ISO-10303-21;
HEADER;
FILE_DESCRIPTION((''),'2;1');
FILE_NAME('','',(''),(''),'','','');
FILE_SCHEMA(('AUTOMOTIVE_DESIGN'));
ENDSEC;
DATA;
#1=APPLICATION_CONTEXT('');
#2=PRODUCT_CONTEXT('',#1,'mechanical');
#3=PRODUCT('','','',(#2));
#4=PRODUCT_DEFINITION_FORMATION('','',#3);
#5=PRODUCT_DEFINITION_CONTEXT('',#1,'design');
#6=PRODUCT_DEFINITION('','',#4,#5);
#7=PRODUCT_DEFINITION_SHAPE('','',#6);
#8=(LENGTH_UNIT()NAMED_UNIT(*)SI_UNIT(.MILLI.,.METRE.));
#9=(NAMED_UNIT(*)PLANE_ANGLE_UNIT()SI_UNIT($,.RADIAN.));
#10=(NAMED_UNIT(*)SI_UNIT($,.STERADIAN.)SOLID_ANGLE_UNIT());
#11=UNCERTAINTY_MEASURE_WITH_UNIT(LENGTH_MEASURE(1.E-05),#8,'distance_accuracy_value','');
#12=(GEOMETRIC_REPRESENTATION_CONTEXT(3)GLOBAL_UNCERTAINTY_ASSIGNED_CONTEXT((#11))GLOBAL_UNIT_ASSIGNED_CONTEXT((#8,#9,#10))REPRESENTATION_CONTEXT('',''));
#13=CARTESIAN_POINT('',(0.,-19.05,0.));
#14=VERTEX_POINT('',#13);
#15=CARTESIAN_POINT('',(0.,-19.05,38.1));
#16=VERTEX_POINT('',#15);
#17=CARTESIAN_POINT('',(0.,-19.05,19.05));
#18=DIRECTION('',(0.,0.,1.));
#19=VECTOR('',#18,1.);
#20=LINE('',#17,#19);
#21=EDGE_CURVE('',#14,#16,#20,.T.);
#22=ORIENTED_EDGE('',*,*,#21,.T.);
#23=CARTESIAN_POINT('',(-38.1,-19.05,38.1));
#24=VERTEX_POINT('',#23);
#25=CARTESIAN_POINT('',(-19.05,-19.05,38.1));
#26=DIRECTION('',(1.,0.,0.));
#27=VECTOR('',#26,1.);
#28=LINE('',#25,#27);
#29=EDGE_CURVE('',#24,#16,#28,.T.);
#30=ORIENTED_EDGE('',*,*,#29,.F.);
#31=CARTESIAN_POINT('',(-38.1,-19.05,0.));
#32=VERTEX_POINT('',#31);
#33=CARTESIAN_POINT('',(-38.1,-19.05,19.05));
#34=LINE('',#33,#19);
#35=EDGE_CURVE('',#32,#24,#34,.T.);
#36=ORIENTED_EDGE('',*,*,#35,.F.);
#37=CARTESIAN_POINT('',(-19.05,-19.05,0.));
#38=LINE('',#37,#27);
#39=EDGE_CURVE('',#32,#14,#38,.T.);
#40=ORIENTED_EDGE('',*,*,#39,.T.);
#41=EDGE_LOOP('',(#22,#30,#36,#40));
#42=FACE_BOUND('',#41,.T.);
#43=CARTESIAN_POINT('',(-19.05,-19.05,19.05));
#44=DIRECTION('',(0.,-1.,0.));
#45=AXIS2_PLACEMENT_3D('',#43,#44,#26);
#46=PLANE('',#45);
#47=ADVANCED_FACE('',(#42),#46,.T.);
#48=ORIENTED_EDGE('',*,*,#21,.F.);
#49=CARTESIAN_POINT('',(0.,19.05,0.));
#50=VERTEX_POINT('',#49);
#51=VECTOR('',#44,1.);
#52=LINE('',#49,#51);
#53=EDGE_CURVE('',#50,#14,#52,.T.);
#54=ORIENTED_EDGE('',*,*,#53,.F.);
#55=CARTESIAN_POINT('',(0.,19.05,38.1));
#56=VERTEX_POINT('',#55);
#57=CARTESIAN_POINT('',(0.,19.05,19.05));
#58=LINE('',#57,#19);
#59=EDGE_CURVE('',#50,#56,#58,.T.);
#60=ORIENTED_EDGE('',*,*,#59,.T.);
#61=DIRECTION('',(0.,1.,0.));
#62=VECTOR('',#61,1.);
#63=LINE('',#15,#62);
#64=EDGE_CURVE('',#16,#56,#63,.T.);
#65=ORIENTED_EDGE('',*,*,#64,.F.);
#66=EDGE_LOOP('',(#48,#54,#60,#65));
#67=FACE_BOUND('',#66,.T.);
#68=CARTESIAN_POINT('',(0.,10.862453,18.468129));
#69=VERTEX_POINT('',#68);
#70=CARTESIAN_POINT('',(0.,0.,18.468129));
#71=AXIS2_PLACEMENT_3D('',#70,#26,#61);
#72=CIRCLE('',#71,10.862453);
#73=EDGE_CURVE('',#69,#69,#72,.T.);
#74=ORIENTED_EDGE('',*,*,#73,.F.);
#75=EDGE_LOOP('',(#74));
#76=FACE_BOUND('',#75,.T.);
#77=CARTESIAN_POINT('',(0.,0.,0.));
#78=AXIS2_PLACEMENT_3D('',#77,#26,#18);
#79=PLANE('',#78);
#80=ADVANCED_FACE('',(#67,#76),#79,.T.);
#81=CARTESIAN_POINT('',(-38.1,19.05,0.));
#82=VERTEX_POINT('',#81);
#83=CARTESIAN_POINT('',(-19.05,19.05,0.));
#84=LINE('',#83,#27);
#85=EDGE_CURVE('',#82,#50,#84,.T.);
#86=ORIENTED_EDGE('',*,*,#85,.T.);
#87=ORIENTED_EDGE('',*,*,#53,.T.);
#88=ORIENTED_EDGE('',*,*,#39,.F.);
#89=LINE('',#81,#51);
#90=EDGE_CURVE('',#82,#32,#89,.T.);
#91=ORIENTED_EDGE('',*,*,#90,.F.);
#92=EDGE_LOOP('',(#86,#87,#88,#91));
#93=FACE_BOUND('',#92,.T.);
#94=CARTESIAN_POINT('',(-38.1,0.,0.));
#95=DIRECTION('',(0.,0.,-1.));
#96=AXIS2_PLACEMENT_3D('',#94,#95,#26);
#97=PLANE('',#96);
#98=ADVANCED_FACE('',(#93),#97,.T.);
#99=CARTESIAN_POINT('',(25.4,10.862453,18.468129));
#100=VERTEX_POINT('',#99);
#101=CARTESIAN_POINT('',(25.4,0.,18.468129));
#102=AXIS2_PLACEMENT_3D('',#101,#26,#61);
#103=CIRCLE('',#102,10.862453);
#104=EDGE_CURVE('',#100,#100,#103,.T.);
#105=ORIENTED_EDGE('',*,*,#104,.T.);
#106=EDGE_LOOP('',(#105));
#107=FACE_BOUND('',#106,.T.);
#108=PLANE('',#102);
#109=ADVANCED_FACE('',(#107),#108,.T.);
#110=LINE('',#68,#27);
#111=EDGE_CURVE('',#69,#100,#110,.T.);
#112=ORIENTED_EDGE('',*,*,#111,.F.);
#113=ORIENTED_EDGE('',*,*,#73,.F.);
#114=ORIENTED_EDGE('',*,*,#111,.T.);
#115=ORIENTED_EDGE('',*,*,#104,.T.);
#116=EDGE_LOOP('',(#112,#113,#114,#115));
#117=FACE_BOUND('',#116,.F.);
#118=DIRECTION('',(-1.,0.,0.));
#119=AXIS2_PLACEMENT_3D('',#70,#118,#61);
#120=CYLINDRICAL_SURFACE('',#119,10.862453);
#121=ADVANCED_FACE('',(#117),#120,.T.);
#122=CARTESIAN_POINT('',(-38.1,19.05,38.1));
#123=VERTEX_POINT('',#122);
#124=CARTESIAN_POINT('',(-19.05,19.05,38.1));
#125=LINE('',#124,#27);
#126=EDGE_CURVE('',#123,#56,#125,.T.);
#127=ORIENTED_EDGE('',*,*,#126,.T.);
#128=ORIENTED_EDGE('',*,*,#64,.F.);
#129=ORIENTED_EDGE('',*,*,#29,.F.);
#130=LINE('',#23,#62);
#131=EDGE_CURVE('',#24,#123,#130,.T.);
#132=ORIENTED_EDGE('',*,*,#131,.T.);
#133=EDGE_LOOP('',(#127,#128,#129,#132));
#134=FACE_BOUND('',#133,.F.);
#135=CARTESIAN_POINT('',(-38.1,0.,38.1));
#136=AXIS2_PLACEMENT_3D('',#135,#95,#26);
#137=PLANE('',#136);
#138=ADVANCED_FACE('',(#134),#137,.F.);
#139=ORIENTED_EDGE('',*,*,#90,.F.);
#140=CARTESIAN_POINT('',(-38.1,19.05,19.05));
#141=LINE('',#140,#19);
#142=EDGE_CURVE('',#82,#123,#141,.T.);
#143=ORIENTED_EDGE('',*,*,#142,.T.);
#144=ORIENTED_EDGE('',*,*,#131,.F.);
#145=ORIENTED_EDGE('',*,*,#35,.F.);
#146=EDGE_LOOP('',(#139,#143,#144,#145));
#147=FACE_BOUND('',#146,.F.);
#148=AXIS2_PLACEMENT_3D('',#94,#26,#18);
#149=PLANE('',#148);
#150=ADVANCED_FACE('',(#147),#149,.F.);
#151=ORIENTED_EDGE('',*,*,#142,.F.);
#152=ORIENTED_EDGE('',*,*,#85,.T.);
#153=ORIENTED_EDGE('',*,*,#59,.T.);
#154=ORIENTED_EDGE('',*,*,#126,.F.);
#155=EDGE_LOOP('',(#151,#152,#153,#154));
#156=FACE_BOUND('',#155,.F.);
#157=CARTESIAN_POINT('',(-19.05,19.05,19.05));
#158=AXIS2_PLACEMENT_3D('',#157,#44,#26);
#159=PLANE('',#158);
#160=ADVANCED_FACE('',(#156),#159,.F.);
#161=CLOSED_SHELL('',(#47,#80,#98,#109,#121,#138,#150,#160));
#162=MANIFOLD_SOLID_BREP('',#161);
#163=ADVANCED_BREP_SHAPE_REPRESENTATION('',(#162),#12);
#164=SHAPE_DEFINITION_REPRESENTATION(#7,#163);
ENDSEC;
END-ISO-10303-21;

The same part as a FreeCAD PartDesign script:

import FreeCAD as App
import Part
import Sketcher

V = App.Vector
Q = App.Units.Quantity

doc = App.newDocument("Part")
body = doc.addObject("PartDesign::Body", "Body")

# Sketch on XZ plane
sketch1 = body.newObject("Sketcher::SketchObject", "Sketch")
sketch1.AttachmentSupport = (doc.getObject("XZ_Plane"), [""])
sketch1.MapMode = "FlatFace"
sketch1.addGeometry(Part.LineSegment(V(-38, 38, 0), V(-38, 0, 0)), False)
sketch1.addGeometry(Part.LineSegment(V(-38, 0, 0), V(0, 0, 0)), False)
sketch1.addGeometry(Part.LineSegment(V(0, 0, 0), V(0, 38, 0)), False)
sketch1.addGeometry(Part.LineSegment(V(0, 38, 0), V(-38, 38, 0)), False)
sketch1.addConstraint(Sketcher.Constraint("Coincident", 0, 2, 1, 1))
sketch1.addConstraint(Sketcher.Constraint("Coincident", 1, 2, 2, 1))
sketch1.addConstraint(Sketcher.Constraint("Coincident", 2, 2, 3, 1))
sketch1.addConstraint(Sketcher.Constraint("Coincident", 3, 2, 0, 1))
sketch1.addConstraint(Sketcher.Constraint("Vertical", 0))
sketch1.addConstraint(Sketcher.Constraint("Horizontal", 1))
sketch1.addConstraint(Sketcher.Constraint("Vertical", 2))
sketch1.addConstraint(Sketcher.Constraint("Horizontal", 3))
sketch1.addConstraint(Sketcher.Constraint("Coincident", 1, 2, -1, 1))
sketch1.addConstraint(Sketcher.Constraint("Equal", 3, 0))
sketch1.addConstraint(Sketcher.Constraint("DistanceX", 1, 1, 1, 2, Q("1.5 in")))
pad1 = body.newObject("PartDesign::Pad", "Pad")
pad1.Profile = sketch1
pad1.Length = Q("1.5 in")
pad1.Midplane = True

# Sketch on YZ plane
sketch2 = body.newObject("Sketcher::SketchObject", "Sketch001")
sketch2.AttachmentSupport = (doc.getObject("YZ_Plane"), [""])
sketch2.MapMode = "FlatFace"
sketch2.addGeometry(Part.Circle(V(0, 18, 0), V(0, 0, 1), 11), False)
sketch2.addConstraint(Sketcher.Constraint("PointOnObject", 0, 3, -2))
sketch2.addConstraint(Sketcher.Constraint("Diameter", 0, 21.724906))
sketch2.addConstraint(Sketcher.Constraint("DistanceY", -1, 1, 0, 3, 18.468129))
pad2 = body.newObject("PartDesign::Pad", "Pad001")
pad2.Profile = sketch2
pad2.Length = Q("1 in")

doc.recompute()
